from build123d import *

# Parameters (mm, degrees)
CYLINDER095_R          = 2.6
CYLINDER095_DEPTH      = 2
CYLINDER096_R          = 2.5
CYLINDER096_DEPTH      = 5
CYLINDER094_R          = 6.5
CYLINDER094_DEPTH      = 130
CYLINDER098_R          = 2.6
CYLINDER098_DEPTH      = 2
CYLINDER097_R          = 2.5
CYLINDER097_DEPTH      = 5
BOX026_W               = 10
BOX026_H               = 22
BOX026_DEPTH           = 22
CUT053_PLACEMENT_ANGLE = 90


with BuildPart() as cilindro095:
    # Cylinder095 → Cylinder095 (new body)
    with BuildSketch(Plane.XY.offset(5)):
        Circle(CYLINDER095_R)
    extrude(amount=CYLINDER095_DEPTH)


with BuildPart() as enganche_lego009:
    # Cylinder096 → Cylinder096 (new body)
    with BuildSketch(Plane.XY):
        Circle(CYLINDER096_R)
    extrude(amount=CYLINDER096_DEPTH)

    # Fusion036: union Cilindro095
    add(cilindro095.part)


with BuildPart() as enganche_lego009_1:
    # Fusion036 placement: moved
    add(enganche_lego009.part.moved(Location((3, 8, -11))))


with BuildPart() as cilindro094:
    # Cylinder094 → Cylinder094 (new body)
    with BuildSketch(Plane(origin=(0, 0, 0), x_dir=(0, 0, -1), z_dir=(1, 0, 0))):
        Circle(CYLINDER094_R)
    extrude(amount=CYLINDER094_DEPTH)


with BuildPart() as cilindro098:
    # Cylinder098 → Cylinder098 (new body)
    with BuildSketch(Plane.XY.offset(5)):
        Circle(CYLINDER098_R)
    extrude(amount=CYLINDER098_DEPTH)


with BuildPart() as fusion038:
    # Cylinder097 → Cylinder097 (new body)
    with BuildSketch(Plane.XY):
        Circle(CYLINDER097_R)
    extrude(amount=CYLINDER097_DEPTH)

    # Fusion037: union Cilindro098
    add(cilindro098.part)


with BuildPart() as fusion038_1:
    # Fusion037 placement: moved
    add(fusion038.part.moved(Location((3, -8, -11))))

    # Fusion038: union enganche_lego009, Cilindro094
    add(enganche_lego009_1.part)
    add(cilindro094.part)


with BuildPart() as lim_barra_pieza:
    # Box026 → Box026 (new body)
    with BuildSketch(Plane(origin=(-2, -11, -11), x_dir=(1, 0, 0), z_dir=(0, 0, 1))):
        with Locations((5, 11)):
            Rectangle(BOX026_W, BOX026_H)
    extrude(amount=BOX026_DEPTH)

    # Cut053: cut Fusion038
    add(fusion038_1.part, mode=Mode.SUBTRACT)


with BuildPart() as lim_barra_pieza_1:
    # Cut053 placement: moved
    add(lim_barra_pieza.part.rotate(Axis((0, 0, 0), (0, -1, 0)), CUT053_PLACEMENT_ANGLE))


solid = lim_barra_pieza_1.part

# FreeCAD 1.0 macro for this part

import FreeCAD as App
import Part
import Sketcher

V = App.Vector
Q = App.Units.Quantity


def add_polygon(sketch, points):
    """Adds a closed chain of lines whose ends are joined by coincident constraints."""
    first, n = sketch.GeometryCount, len(points)
    for a, b in zip(points, points[1:] + points[:1]):
        sketch.addGeometry(Part.LineSegment(App.Vector(*a, 0), App.Vector(*b, 0)), False)
    for i in range(n):
        sketch.addConstraint(Sketcher.Constraint("Coincident", first + i, 2, first + (i + 1) % n, 1))

doc = App.newDocument("Part")
params = doc.addObject("Spreadsheet::Sheet", "Params")
for row, (alias, value) in enumerate([
    ("sketch1_diameter", "5.2 mm"),
    ("pad1_length", "2 mm"),
    ("sketch2_diameter", "5 mm"),
    ("pad2_length", "5 mm"),
    ("sketch3_diameter", "13 mm"),
    ("pad3_length", "130 mm"),
    ("sketch4_diameter", "5.2 mm"),
    ("pad4_length", "2 mm"),
    ("sketch5_diameter", "5 mm"),
    ("pad5_length", "5 mm"),
    ("sketch6_width", "10 mm"),
    ("sketch6_height", "22 mm"),
    ("pad6_length", "22 mm"),
], start=1):
    params.set(f"A{row}", alias)
    params.set(f"B{row}", "=" + value)
    params.setAlias(f"B{row}", alias)

body = doc.addObject("PartDesign::Body", "Body")

sketch1 = body.newObject("Sketcher::SketchObject", "Sketch")
sketch1.AttachmentSupport = (doc.getObject("XY_Plane"), [""])
sketch1.MapMode = "FlatFace"
sketch1.AttachmentOffset = App.Placement(V(0, 0, 5), App.Rotation())
sketch1.addGeometry(Part.Circle(V(0, 0, 0), V(0, 0, 1), 2.6), False)
sketch1.addConstraint([
    Sketcher.Constraint("Coincident", 0, 3, -1, 1),
    Sketcher.Constraint("Diameter", 0, Q("5.2 mm")),
])
sketch1.setExpression("Constraints[1]", "Params.sketch1_diameter")
pad1 = body.newObject("PartDesign::Pad", "Pad")
pad1.Profile = sketch1
pad1.setExpression("Length", "Params.pad1_length")
body2 = doc.addObject("PartDesign::Body", "Body001")

sketch2 = body2.newObject("Sketcher::SketchObject", "Sketch001")
sketch2.AttachmentSupport = (doc.getObject("XY_Plane001"), [""])
sketch2.MapMode = "FlatFace"
sketch2.addGeometry(Part.Circle(V(0, 0, 0), V(0, 0, 1), 2.5), False)
sketch2.addConstraint([
    Sketcher.Constraint("Coincident", 0, 3, -1, 1),
    Sketcher.Constraint("Diameter", 0, Q("5 mm")),
])
sketch2.setExpression("Constraints[1]", "Params.sketch2_diameter")
pad2 = body2.newObject("PartDesign::Pad", "Pad001")
pad2.Profile = sketch2
pad2.setExpression("Length", "Params.pad2_length")
doc.recompute()

boolean = body2.newObject("PartDesign::Boolean", "Boolean")
boolean.Type = "Fuse"
boolean.addObjects([body])
body3 = doc.addObject("PartDesign::Body", "Body002")
doc.recompute()

body2.Placement = App.Placement(V(3, 8, -11), App.Rotation(V(0, 0, 1), 0))
boolean2 = body3.newObject("PartDesign::Boolean", "Boolean001")
boolean2.Type = "Fuse"
boolean2.addObjects([body2])
body4 = doc.addObject("PartDesign::Body", "Body003")

sketch3 = body4.newObject("Sketcher::SketchObject", "Sketch002")
sketch3.AttachmentSupport = (doc.getObject("YZ_Plane003"), [""])
sketch3.MapMode = "FlatFace"
sketch3.addGeometry(Part.Circle(V(0, 0, 0), V(0, 0, 1), 6), False)
sketch3.addConstraint([
    Sketcher.Constraint("Coincident", 0, 3, -1, 1),
    Sketcher.Constraint("Diameter", 0, Q("13 mm")),
])
sketch3.setExpression("Constraints[1]", "Params.sketch3_diameter")
pad3 = body4.newObject("PartDesign::Pad", "Pad002")
pad3.Profile = sketch3
pad3.setExpression("Length", "Params.pad3_length")
body5 = doc.addObject("PartDesign::Body", "Body004")

sketch4 = body5.newObject("Sketcher::SketchObject", "Sketch003")
sketch4.AttachmentSupport = (doc.getObject("XY_Plane004"), [""])
sketch4.MapMode = "FlatFace"
sketch4.AttachmentOffset = App.Placement(V(0, 0, 5), App.Rotation())
sketch4.addGeometry(Part.Circle(V(0, 0, 0), V(0, 0, 1), 2.6), False)
sketch4.addConstraint([
    Sketcher.Constraint("Coincident", 0, 3, -1, 1),
    Sketcher.Constraint("Diameter", 0, Q("5.2 mm")),
])
sketch4.setExpression("Constraints[1]", "Params.sketch4_diameter")
pad4 = body5.newObject("PartDesign::Pad", "Pad003")
pad4.Profile = sketch4
pad4.setExpression("Length", "Params.pad4_length")
body6 = doc.addObject("PartDesign::Body", "Body005")

sketch5 = body6.newObject("Sketcher::SketchObject", "Sketch004")
sketch5.AttachmentSupport = (doc.getObject("XY_Plane005"), [""])
sketch5.MapMode = "FlatFace"
sketch5.addGeometry(Part.Circle(V(0, 0, 0), V(0, 0, 1), 2.5), False)
sketch5.addConstraint([
    Sketcher.Constraint("Coincident", 0, 3, -1, 1),
    Sketcher.Constraint("Diameter", 0, Q("5 mm")),
])
sketch5.setExpression("Constraints[1]", "Params.sketch5_diameter")
pad5 = body6.newObject("PartDesign::Pad", "Pad004")
pad5.Profile = sketch5
pad5.setExpression("Length", "Params.pad5_length")
doc.recompute()

boolean3 = body6.newObject("PartDesign::Boolean", "Boolean002")
boolean3.Type = "Fuse"
boolean3.addObjects([body5])
body7 = doc.addObject("PartDesign::Body", "Body006")
body7.AllowCompound = True
doc.recompute()

body6.Placement = App.Placement(V(3, -8, -11), App.Rotation(V(0, 0, 1), 0))
boolean4 = body7.newObject("PartDesign::Boolean", "Boolean003")
boolean4.Type = "Fuse"
boolean4.addObjects([body6])
doc.recompute()

boolean5 = body7.newObject("PartDesign::Boolean", "Boolean004")
boolean5.Type = "Fuse"
boolean5.addObjects([body3])
doc.recompute()

boolean6 = body7.newObject("PartDesign::Boolean", "Boolean005")
boolean6.Type = "Fuse"
boolean6.addObjects([body4])
body8 = doc.addObject("PartDesign::Body", "Body007")

sketch6 = body8.newObject("Sketcher::SketchObject", "Sketch005")
sketch6.AttachmentSupport = (doc.getObject("XY_Plane007"), [""])
sketch6.MapMode = "FlatFace"
sketch6.AttachmentOffset = App.Placement(V(0, 0, -11), App.Rotation())
add_polygon(sketch6, [(-2, 11), (-2, -11), (8, -11), (8, 11)])
sketch6.addConstraint([
    Sketcher.Constraint("Vertical", 0),
    Sketcher.Constraint("Horizontal", 1),
    Sketcher.Constraint("Vertical", 2),
    Sketcher.Constraint("Horizontal", 3),
    Sketcher.Constraint("DistanceX", 1, 1, 1, 2, Q("10 mm")),
    Sketcher.Constraint("DistanceY", 0, 2, 0, 1, Q("22 mm")),
    Sketcher.Constraint("DistanceX", 0, 2, -1, 1, Q("2 mm")),
    Sketcher.Constraint("DistanceY", 0, 2, -1, 1, Q("11 mm")),
])
sketch6.setExpression("Constraints[8]", "Params.sketch6_width")
sketch6.setExpression("Constraints[9]", "Params.sketch6_height")
pad6 = body8.newObject("PartDesign::Pad", "Pad005")
pad6.Profile = sketch6
pad6.setExpression("Length", "Params.pad6_length")
doc.recompute()

boolean7 = body8.newObject("PartDesign::Boolean", "Boolean006")
boolean7.Type = "Cut"
boolean7.addObjects([body7])
body9 = doc.addObject("PartDesign::Body", "Body008")
doc.recompute()

body8.Placement = App.Placement(V(0, 0, 0), App.Rotation(V(0, -1, 0), 90))
boolean8 = body9.newObject("PartDesign::Boolean", "Boolean007")
boolean8.Type = "Fuse"
boolean8.addObjects([body8])

doc.recompute()
